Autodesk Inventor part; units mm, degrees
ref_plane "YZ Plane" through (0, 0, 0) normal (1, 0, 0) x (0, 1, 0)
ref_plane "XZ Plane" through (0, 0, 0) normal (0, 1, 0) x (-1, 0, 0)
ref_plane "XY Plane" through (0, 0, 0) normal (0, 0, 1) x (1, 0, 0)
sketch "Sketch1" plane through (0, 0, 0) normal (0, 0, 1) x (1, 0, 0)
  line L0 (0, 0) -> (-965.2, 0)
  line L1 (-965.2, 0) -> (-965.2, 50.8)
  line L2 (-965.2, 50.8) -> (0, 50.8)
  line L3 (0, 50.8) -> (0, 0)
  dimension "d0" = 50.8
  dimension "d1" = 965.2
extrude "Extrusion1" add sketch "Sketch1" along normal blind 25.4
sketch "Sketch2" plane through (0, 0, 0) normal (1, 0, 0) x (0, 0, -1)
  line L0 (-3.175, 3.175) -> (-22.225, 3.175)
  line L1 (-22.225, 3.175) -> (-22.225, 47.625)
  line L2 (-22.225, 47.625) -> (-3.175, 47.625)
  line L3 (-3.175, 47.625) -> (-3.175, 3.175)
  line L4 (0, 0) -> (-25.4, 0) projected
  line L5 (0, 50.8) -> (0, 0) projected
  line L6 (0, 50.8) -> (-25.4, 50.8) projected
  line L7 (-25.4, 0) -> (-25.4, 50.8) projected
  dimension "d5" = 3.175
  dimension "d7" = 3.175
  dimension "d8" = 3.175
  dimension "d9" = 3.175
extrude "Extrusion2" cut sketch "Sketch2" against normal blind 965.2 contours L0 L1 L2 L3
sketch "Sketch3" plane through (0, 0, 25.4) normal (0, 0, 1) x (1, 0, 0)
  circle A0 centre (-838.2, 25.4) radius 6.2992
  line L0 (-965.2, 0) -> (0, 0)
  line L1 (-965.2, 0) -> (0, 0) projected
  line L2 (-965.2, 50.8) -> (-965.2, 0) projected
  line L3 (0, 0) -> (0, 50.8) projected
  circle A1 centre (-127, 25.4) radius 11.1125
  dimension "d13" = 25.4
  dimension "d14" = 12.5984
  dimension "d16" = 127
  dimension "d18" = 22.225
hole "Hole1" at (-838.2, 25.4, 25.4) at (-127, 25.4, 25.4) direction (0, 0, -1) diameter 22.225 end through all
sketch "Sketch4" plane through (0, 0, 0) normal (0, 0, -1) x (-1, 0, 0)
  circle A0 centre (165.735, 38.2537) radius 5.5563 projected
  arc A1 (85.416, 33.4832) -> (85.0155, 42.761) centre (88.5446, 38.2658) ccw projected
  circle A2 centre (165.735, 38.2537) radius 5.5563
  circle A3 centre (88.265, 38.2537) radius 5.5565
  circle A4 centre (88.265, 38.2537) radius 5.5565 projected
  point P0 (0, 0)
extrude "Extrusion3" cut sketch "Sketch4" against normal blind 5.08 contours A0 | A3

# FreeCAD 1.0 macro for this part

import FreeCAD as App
import Part
import Sketcher
Q = App.Units.Quantity

doc = App.newDocument("Part")
body = doc.addObject("PartDesign::Body", "Body")

sketch1 = body.newObject("Sketcher::SketchObject", "Sketch")
sketch1.AttachmentSupport = (doc.getObject("XY_Plane"), [""])
sketch1.MapMode = "FlatFace"
sketch1.addGeometry(Part.LineSegment(App.Vector(-965.2, 0, 0), App.Vector(0, 0, 0)), False)
sketch1.addGeometry(Part.LineSegment(App.Vector(0, 0, 0), App.Vector(0, 50.8, 0)), False)
sketch1.addGeometry(Part.LineSegment(App.Vector(0, 50.8, 0), App.Vector(-965.2, 50.8, 0)), False)
sketch1.addGeometry(Part.LineSegment(App.Vector(-965.2, 50.8, 0), App.Vector(-965.2, 0, 0)), False)
sketch1.addConstraint(Sketcher.Constraint("Coincident", 0, 2, 1, 1))
sketch1.addConstraint(Sketcher.Constraint("Coincident", 1, 2, 2, 1))
sketch1.addConstraint(Sketcher.Constraint("Coincident", 2, 2, 3, 1))
sketch1.addConstraint(Sketcher.Constraint("Coincident", 3, 2, 0, 1))
sketch1.addConstraint(Sketcher.Constraint("Horizontal", 0))
sketch1.addConstraint(Sketcher.Constraint("Vertical", 1))
sketch1.addConstraint(Sketcher.Constraint("Horizontal", 2))
sketch1.addConstraint(Sketcher.Constraint("Vertical", 3))
sketch1.addConstraint(Sketcher.Constraint("Coincident", 0, 2, -1, 1))
sketch1.addConstraint(Sketcher.Constraint("DistanceX", 0, 1, 0, 2, Q("38 in")))
sketch1.addConstraint(Sketcher.Constraint("DistanceY", 1, 1, 1, 2, Q("2 in")))
pad1 = body.newObject("PartDesign::Pad", "Pad")
pad1.Profile = sketch1
pad1.Length = Q("1 in")

sketch2 = body.newObject("Sketcher::SketchObject", "Sketch001")
sketch2.AttachmentSupport = (doc.getObject("YZ_Plane"), [""])
sketch2.MapMode = "FlatFace"
sketch2.addGeometry(Part.LineSegment(App.Vector(3.175, 22.225, 0), App.Vector(3.175, 3.175, 0)), False)
sketch2.addGeometry(Part.LineSegment(App.Vector(3.175, 3.175, 0), App.Vector(47.625, 3.175, 0)), False)
sketch2.addGeometry(Part.LineSegment(App.Vector(47.625, 3.175, 0), App.Vector(47.625, 22.225, 0)), False)
sketch2.addGeometry(Part.LineSegment(App.Vector(47.625, 22.225, 0), App.Vector(3.175, 22.225, 0)), False)
sketch2.addConstraint(Sketcher.Constraint("Coincident", 0, 2, 1, 1))
sketch2.addConstraint(Sketcher.Constraint("Coincident", 1, 2, 2, 1))
sketch2.addConstraint(Sketcher.Constraint("Coincident", 2, 2, 3, 1))
sketch2.addConstraint(Sketcher.Constraint("Coincident", 3, 2, 0, 1))
sketch2.addConstraint(Sketcher.Constraint("Vertical", 0))
sketch2.addConstraint(Sketcher.Constraint("Horizontal", 1))
sketch2.addConstraint(Sketcher.Constraint("Vertical", 2))
sketch2.addConstraint(Sketcher.Constraint("Horizontal", 3))
sketch2.addConstraint(Sketcher.Constraint("DistanceX", -1, 1, 0, 2, Q("0.125 in")))
sketch2.addConstraint(Sketcher.Constraint("DistanceY", -1, 1, 0, 2, Q("0.125 in")))
sketch2.addConstraint(Sketcher.Constraint("DistanceX", 1, 1, 1, 2, Q("1.75 in")))
sketch2.addConstraint(Sketcher.Constraint("DistanceY", 0, 2, 0, 1, Q("0.75 in")))
pocket1 = body.newObject("PartDesign::Pocket", "Pocket")
pocket1.Profile = sketch2
pocket1.Length = Q("38 in")

sketch3 = body.newObject("Sketcher::SketchObject", "Sketch002")
sketch3.AttachmentSupport = (doc.getObject("XY_Plane"), [""])
sketch3.MapMode = "FlatFace"
sketch3.AttachmentOffset = App.Placement(App.Vector(0, 0, 1 * 25.4), App.Rotation())
sketch3.addGeometry(Part.Circle(App.Vector(-838.2, 25.4, 0), App.Vector(0, 0, 1), 11.1125), False)
sketch3.addGeometry(Part.Circle(App.Vector(-127, 25.4, 0), App.Vector(0, 0, 1), 11.1125), False)
sketch3.addConstraint(Sketcher.Constraint("Equal", 0, 1))
sketch3.addConstraint(Sketcher.Constraint("Horizontal", 0, 3, 1, 3))
sketch3.addConstraint(Sketcher.Constraint("Diameter", 0, Q("0.875 in")))
sketch3.addConstraint(Sketcher.Constraint("DistanceX", 0, 3, -1, 1, Q("33 in")))
sketch3.addConstraint(Sketcher.Constraint("DistanceY", -1, 1, 0, 3, Q("1 in")))
sketch3.addConstraint(Sketcher.Constraint("DistanceX", 1, 3, -1, 1, Q("5 in")))
doc.recompute()
hole = body.newObject("PartDesign::Hole", "Hole")
hole.Profile = sketch3
hole.ThreadType = "None"
hole.Diameter = Q("0.875 in")
hole.DepthType = "ThroughAll"

sketch4 = body.newObject("Sketcher::SketchObject", "Sketch003")
sketch4.AttachmentSupport = (doc.getObject("XY_Plane"), [""])
sketch4.MapMode = "FlatFace"
sketch4.addGeometry(Part.Circle(App.Vector(-165.735, 38.2537, 0), App.Vector(0, 0, 1), 5.5563), False)
sketch4.addGeometry(Part.Circle(App.Vector(-88.265, 38.2537, 0), App.Vector(0, 0, 1), 5.5565), False)
sketch4.addConstraint(Sketcher.Constraint("Equal", 0, 1))
sketch4.addConstraint(Sketcher.Constraint("Horizontal", 0, 3, 1, 3))
sketch4.addConstraint(Sketcher.Constraint("Diameter", 0, Q("0.4375 in")))
sketch4.addConstraint(Sketcher.Constraint("DistanceX", 0, 3, 1, 3, Q("3.05 in")))
sketch4.addConstraint(Sketcher.Constraint("DistanceX", 0, 3, -1, 1, Q("6.525 in")))
sketch4.addConstraint(Sketcher.Constraint("DistanceY", -1, 1, 0, 3, 38.2537))
pocket2 = body.newObject("PartDesign::Pocket", "Pocket001")
pocket2.Profile = sketch4
pocket2.Length = Q("0.2 in")
pocket2.Reversed = True

doc.recompute()
